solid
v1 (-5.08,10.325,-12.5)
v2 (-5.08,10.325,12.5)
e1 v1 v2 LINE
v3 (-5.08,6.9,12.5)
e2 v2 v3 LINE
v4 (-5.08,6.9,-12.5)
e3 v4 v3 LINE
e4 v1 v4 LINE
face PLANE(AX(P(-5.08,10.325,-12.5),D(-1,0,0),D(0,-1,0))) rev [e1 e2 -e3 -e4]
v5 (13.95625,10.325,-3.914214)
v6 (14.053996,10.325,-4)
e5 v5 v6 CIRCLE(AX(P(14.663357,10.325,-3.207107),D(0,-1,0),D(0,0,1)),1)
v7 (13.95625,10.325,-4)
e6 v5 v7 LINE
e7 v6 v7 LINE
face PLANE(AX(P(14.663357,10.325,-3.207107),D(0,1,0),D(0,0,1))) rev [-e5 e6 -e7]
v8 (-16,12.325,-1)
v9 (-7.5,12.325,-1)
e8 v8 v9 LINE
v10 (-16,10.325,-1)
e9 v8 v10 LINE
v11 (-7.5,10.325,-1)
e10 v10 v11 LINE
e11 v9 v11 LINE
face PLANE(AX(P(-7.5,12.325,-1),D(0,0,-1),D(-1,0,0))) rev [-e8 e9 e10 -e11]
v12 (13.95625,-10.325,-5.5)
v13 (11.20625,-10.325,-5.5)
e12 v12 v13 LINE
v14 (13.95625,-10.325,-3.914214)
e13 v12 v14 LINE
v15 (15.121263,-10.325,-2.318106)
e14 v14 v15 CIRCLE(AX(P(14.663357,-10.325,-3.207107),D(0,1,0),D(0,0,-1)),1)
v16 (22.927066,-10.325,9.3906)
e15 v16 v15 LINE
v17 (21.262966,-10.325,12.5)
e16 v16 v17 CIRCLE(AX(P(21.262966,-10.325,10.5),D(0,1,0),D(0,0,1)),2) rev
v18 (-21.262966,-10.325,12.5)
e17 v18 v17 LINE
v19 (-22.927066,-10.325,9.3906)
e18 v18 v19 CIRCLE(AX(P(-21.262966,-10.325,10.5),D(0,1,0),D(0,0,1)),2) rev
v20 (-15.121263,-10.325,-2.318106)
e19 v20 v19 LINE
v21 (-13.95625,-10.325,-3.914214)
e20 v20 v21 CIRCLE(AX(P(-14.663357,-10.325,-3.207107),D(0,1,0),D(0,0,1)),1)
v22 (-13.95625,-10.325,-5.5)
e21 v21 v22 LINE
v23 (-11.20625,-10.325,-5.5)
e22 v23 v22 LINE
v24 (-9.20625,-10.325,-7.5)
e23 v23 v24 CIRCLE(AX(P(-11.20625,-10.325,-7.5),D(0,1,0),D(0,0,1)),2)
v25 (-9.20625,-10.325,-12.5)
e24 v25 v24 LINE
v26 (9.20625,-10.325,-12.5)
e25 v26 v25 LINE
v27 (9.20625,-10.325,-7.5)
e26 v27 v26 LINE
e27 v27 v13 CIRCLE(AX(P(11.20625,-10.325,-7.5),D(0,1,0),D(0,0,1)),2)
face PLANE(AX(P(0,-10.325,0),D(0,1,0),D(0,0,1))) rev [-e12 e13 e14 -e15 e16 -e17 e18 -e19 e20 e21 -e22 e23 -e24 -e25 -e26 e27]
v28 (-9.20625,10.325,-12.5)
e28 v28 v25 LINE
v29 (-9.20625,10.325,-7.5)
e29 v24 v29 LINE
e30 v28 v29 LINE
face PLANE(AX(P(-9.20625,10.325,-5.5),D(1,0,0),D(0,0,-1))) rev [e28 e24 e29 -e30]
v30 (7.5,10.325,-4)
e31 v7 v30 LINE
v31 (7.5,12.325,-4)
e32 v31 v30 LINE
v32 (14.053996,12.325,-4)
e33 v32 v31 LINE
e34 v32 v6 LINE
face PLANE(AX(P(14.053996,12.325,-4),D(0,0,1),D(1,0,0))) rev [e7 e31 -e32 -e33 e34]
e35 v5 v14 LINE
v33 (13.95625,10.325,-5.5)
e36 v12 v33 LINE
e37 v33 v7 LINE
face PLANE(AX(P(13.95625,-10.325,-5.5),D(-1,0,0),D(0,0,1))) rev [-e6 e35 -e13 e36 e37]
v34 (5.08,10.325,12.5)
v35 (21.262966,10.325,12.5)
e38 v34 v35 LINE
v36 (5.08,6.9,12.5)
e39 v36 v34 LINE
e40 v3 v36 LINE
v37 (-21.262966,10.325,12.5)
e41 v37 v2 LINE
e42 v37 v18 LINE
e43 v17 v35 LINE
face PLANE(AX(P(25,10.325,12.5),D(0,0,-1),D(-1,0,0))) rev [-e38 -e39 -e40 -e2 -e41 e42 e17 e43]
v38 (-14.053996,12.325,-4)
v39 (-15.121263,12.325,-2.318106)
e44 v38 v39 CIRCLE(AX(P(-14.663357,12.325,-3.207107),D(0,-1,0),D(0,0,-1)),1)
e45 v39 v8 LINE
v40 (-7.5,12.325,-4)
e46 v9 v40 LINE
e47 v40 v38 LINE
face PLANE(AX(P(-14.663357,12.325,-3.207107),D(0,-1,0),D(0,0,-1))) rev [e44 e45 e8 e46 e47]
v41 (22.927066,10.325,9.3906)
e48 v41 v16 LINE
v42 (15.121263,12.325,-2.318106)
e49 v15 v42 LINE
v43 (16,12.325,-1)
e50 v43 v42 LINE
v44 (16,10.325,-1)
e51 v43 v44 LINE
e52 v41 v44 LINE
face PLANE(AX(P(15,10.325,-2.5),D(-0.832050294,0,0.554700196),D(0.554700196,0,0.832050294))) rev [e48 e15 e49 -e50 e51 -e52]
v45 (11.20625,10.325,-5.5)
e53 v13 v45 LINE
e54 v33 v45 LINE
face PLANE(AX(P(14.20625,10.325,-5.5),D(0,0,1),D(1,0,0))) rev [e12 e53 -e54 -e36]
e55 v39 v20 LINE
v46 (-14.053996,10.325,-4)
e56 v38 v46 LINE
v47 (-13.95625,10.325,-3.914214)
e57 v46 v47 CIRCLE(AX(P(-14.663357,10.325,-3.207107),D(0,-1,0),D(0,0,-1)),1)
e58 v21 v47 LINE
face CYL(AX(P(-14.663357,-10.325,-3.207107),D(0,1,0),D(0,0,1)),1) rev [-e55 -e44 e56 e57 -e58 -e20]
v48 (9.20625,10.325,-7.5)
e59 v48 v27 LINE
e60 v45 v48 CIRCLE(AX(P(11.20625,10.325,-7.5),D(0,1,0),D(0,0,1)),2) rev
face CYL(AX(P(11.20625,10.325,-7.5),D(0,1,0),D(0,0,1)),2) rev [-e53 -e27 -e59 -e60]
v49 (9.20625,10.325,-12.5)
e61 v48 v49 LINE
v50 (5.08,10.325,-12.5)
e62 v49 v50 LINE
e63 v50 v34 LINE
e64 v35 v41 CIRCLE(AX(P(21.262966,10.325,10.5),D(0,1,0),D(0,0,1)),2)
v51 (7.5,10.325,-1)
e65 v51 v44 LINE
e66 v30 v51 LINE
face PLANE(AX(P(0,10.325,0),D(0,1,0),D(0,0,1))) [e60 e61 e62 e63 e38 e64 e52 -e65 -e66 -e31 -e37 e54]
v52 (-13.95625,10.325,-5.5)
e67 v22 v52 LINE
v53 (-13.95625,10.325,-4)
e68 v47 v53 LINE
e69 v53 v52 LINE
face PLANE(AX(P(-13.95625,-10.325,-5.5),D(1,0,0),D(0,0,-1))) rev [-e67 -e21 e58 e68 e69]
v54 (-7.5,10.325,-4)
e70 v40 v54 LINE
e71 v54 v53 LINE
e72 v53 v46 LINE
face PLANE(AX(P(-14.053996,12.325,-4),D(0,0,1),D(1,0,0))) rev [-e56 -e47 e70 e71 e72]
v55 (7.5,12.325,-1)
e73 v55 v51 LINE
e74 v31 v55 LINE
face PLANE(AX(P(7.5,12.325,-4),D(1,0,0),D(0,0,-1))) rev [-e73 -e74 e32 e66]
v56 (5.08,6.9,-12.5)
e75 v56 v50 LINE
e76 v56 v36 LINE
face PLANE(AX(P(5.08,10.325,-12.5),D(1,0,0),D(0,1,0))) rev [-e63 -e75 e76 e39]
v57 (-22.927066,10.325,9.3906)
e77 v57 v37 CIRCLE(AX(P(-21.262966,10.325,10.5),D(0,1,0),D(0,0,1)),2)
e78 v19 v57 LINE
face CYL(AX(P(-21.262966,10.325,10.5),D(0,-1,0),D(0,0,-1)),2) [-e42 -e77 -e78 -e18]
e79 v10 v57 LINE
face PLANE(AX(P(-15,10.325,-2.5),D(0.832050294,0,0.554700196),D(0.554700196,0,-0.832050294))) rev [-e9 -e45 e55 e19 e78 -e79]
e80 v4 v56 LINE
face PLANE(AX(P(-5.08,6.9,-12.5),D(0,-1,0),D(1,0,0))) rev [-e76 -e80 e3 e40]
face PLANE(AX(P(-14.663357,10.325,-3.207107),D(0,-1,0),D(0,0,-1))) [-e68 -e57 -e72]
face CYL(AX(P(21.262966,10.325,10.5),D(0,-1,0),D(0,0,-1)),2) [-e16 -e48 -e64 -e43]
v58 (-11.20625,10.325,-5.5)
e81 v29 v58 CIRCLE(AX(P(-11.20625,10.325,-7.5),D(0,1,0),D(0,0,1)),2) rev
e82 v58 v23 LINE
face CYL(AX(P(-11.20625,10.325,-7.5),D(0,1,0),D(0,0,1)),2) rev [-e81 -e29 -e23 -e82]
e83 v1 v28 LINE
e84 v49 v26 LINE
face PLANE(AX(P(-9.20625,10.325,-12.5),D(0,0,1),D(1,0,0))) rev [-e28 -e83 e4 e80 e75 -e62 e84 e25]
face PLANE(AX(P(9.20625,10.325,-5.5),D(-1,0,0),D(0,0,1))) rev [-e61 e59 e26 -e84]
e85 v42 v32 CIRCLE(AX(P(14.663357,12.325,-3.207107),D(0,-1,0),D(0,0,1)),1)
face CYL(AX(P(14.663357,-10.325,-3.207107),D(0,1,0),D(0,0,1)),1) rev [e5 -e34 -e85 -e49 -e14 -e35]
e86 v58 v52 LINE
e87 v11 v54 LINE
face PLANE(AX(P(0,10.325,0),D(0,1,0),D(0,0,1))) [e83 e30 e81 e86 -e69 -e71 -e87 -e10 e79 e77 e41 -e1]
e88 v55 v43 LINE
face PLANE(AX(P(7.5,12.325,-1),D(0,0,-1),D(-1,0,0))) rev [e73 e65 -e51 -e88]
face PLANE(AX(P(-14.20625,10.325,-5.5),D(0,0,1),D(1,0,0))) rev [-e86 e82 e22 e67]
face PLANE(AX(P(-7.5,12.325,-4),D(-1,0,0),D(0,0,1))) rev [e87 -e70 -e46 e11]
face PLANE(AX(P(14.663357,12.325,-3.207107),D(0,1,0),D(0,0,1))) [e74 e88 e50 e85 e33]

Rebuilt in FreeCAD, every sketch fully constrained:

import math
import FreeCAD as App
import Part
import Sketcher
from FreeCAD import Vector
Q = App.Units.Quantity


def edges_at(feature, points):
    """Names of the edges that pass closest to the given points."""
    edges = feature.Shape.Edges
    near = lambda p: min(range(len(edges)), key=lambda i: edges[i].distToShape(Part.Vertex(*p))[0])
    return sorted({f"Edge{near(p) + 1}" for p in points})

doc = App.newDocument("Part")
body = doc.addObject("PartDesign::Body", "Body")

# Sketch on XZ plane
sketch1 = body.newObject("Sketcher::SketchObject", "Sketch")
sketch1.AttachmentSupport = (doc.getObject("XZ_Plane"), [""])
sketch1.MapMode = "FlatFace"
sketch1.addGeometry([
    Part.LineSegment(Vector(25, 12.5, 0), Vector(15, -2.5, 0)),  # 0
    Part.LineSegment(Vector(15, -2.5, 0), Vector(14.2, -2.5, 0)),  # 1
    Part.LineSegment(Vector(14.2, -2.5, 0), Vector(14.2, -5.5, 0)),  # 2
    Part.LineSegment(Vector(14.2, -5.5, 0), Vector(9.2, -5.5, 0)),  # 3
    Part.LineSegment(Vector(9.2, -5.5, 0), Vector(9.2, -12.5, 0)),  # 4
    Part.LineSegment(Vector(9.2, -12.5, 0), Vector(-9.2, -12.5, 0)),  # 5
    Part.LineSegment(Vector(-9.2, -12.5, 0), Vector(-9.2, -5.5, 0)),  # 6
    Part.LineSegment(Vector(-9.2, -5.5, 0), Vector(-14.2, -5.5, 0)),  # 7
    Part.LineSegment(Vector(-14.2, -5.5, 0), Vector(-14.2, -2.5, 0)),  # 8
    Part.LineSegment(Vector(-14.2, -2.5, 0), Vector(-15, -2.5, 0)),  # 9
    Part.LineSegment(Vector(-15, -2.5, 0), Vector(-25, 12.5, 0)),  # 10
    Part.LineSegment(Vector(-25, 12.5, 0), Vector(25, 12.5, 0)),  # 11
], False)
sketch1.addConstraint([
    Sketcher.Constraint("Coincident", 0, 2, 1, 1),
    Sketcher.Constraint("Coincident", 1, 2, 2, 1),
    Sketcher.Constraint("Coincident", 2, 2, 3, 1),
    Sketcher.Constraint("Coincident", 3, 2, 4, 1),
    Sketcher.Constraint("Coincident", 4, 2, 5, 1),
    Sketcher.Constraint("Coincident", 5, 2, 6, 1),
    Sketcher.Constraint("Coincident", 6, 2, 7, 1),
    Sketcher.Constraint("Coincident", 7, 2, 8, 1),
    Sketcher.Constraint("Coincident", 8, 2, 9, 1),
    Sketcher.Constraint("Coincident", 9, 2, 10, 1),
    Sketcher.Constraint("Coincident", 10, 2, 11, 1),
    Sketcher.Constraint("Coincident", 11, 2, 0, 1),
    Sketcher.Constraint("Horizontal", 1),
    Sketcher.Constraint("Vertical", 2),
    Sketcher.Constraint("Horizontal", 3),
    Sketcher.Constraint("Vertical", 4),
    Sketcher.Constraint("Horizontal", 5),
    Sketcher.Constraint("Vertical", 6),
    Sketcher.Constraint("Horizontal", 7),
    Sketcher.Constraint("Vertical", 8),
    Sketcher.Constraint("Horizontal", 9),
    Sketcher.Constraint("Horizontal", 11),
    Sketcher.Constraint("Symmetric", 3, 2, 6, 2, -2),
    Sketcher.Constraint("Symmetric", 1, 2, 8, 2, -2),
    Sketcher.Constraint("Equal", 1, 9),
    Sketcher.Constraint("Equal", 0, 10),
    Sketcher.Constraint("DistanceX", 3, 2, 3, 1, Q("5 mm")),
    Sketcher.Constraint("DistanceX", 11, 1, 11, 2, Q("50 mm")),
    Sketcher.Constraint("DistanceY", 2, 2, 2, 1, Q("3 mm")),
    Sketcher.Constraint("DistanceY", 4, 2, 4, 1, Q("7 mm")),
    Sketcher.Constraint("DistanceX", -1, 1, 0, 2, Q("15 mm")),
    Sketcher.Constraint("DistanceY", 9, 2, 10, 2, Q("15 mm")),
    Sketcher.Constraint("DistanceY", 0, 2, -1, 1, Q("2.5 mm")),
    Sketcher.Constraint("DistanceX", 5, 2, 5, 1, Q("18.4125 mm")),
])
pad1 = body.newObject("PartDesign::Pad", "Pad")
pad1.Profile = sketch1
pad1.Length = 20.65
pad1.Midplane = True

# Sketch on XZ plane
sketch2 = body.newObject("Sketcher::SketchObject", "Sketch001")
sketch2.AttachmentSupport = (doc.getObject("XZ_Plane"), [""])
sketch2.MapMode = "FlatFace"
sketch2.AttachmentOffset = App.Placement(Vector(0, 0, -10.325), App.Rotation())
sketch2.addGeometry([
    Part.LineSegment(Vector(13.96, -5.5, 0), Vector(13.96, -2.5, 0)),  # 0
    Part.LineSegment(Vector(13.96, -2.5, 0), Vector(14.21, -2.5, 0)),  # 1
    Part.LineSegment(Vector(14.21, -2.5, 0), Vector(14.21, -5.5, 0)),  # 2
    Part.LineSegment(Vector(14.21, -5.5, 0), Vector(13.96, -5.5, 0)),  # 3
    Part.LineSegment(Vector(-14.21, -5.5, 0), Vector(-14.21, -2.5, 0)),  # 4
    Part.LineSegment(Vector(-14.21, -2.5, 0), Vector(-13.96, -2.5, 0)),  # 5
    Part.LineSegment(Vector(-13.96, -2.5, 0), Vector(-13.96, -5.5, 0)),  # 6
    Part.LineSegment(Vector(-13.96, -5.5, 0), Vector(-14.21, -5.5, 0)),  # 7
], False)
sketch2.addConstraint([
    Sketcher.Constraint("Coincident", 0, 2, 1, 1),
    Sketcher.Constraint("Coincident", 1, 2, 2, 1),
    Sketcher.Constraint("Coincident", 2, 2, 3, 1),
    Sketcher.Constraint("Coincident", 3, 2, 0, 1),
    Sketcher.Constraint("Coincident", 4, 2, 5, 1),
    Sketcher.Constraint("Coincident", 5, 2, 6, 1),
    Sketcher.Constraint("Coincident", 6, 2, 7, 1),
    Sketcher.Constraint("Coincident", 7, 2, 4, 1),
    Sketcher.Constraint("Vertical", 0),
    Sketcher.Constraint("Horizontal", 1),
    Sketcher.Constraint("Vertical", 2),
    Sketcher.Constraint("Horizontal", 3),
    Sketcher.Constraint("Vertical", 4),
    Sketcher.Constraint("Horizontal", 5),
    Sketcher.Constraint("Vertical", 6),
    Sketcher.Constraint("Horizontal", 7),
    Sketcher.Constraint("Symmetric", 1, 2, 4, 2, -2),
    Sketcher.Constraint("Symmetric", 3, 2, 6, 2, -2),
    Sketcher.Constraint("DistanceY", 0, 1, 0, 2, Q("3 mm")),
    Sketcher.Constraint("DistanceX", 1, 1, 1, 2, Q("0.25 mm")),
    Sketcher.Constraint("DistanceY", 0, 2, -1, 1, Q("2.5 mm")),
    Sketcher.Constraint("DistanceX", 4, 2, 0, 2, Q("28.1625 mm")),
])
pocket1 = body.newObject("PartDesign::Pocket", "Pocket")
pocket1.Profile = sketch2
pocket1.Type = "ThroughAll"
pocket1.Midplane = True

# Sketch on XZ plane
sketch3 = body.newObject("Sketcher::SketchObject", "Sketch002")
sketch3.AttachmentSupport = (doc.getObject("XZ_Plane"), [""])
sketch3.MapMode = "FlatFace"
sketch3.AttachmentOffset = App.Placement(Vector(0, 0, -10.325), App.Rotation())
sketch3.addGeometry([
    Part.Circle(Vector(-14.7, -3.2, 0), Vector(0, 0, 1), 1),
    Part.Circle(Vector(14.7, -3.2, 0), Vector(0, 0, 1), 1),
], False)
sketch3.addConstraint([
    Sketcher.Constraint("Equal", 0, 1),
    Sketcher.Constraint("Symmetric", 0, 3, 1, 3, -2),
    Sketcher.Constraint("Diameter", 0, Q("2 mm")),
    Sketcher.Constraint("DistanceX", 0, 3, -1, 1, Q("14.663357 mm")),
    Sketcher.Constraint("DistanceY", 0, 3, -1, 1, Q("3.207107 mm")),
])
pocket2 = body.newObject("PartDesign::Pocket", "Pocket001")
pocket2.Profile = sketch3
pocket2.Type = "ThroughAll"
pocket2.Midplane = True
doc.recompute()

fillet = body.newObject("PartDesign::Fillet", "Fillet")
fillet.Base = (pocket2, edges_at(pocket2, [
    (-25, 0, 12.5),
    (-9.206, 0, -5.5),
    (9.206, 0, -5.5),
    (25, 0, 12.5),
]))
fillet.Radius = 2

# Sketch on XZ plane
sketch4 = body.newObject("Sketcher::SketchObject", "Sketch003")
sketch4.AttachmentSupport = (doc.getObject("XZ_Plane"), [""])
sketch4.MapMode = "FlatFace"
sketch4.AttachmentOffset = App.Placement(Vector(0, 0, -12.325), App.Rotation())
sketch4.addGeometry([
    Part.LineSegment(Vector(-7.5, -4, 0), Vector(-14.1, -4, 0)),  # 0
    Part.ArcOfCircle(Part.Circle(Vector(-14.7, -3.2, 0), Vector(0, 0, 1), 1), math.radians(-52), math.radians(117)),  # 1
    Part.LineSegment(Vector(-15.1, -2.3, 0), Vector(-16, -1, 0)),  # 2
    Part.LineSegment(Vector(-16, -1, 0), Vector(-7.5, -1, 0)),  # 3
    Part.LineSegment(Vector(-7.5, -1, 0), Vector(-7.5, -4, 0)),  # 4
    Part.LineSegment(Vector(16, -1, 0), Vector(15.1, -2.3, 0)),  # 5
    Part.ArcOfCircle(Part.Circle(Vector(14.7, -3.2, 0), Vector(0, 0, 1), 1), math.radians(63), math.radians(232)),  # 6
    Part.LineSegment(Vector(14.1, -4, 0), Vector(7.5, -4, 0)),  # 7
    Part.LineSegment(Vector(7.5, -4, 0), Vector(7.5, -1, 0)),  # 8
    Part.LineSegment(Vector(7.5, -1, 0), Vector(16, -1, 0)),  # 9
], False)
sketch4.addConstraint([
    Sketcher.Constraint("Coincident", 0, 2, 1, 1),
    Sketcher.Constraint("Coincident", 1, 2, 2, 1),
    Sketcher.Constraint("Coincident", 2, 2, 3, 1),
    Sketcher.Constraint("Coincident", 3, 2, 4, 1),
    Sketcher.Constraint("Coincident", 4, 2, 0, 1),
    Sketcher.Constraint("Coincident", 5, 2, 6, 1),
    Sketcher.Constraint("Coincident", 6, 2, 7, 1),
    Sketcher.Constraint("Coincident", 7, 2, 8, 1),
    Sketcher.Constraint("Coincident", 8, 2, 9, 1),
    Sketcher.Constraint("Coincident", 9, 2, 5, 1),
    Sketcher.Constraint("Horizontal", 0),
    Sketcher.Constraint("Horizontal", 3),
    Sketcher.Constraint("Vertical", 4),
    Sketcher.Constraint("Horizontal", 7),
    Sketcher.Constraint("Vertical", 8),
    Sketcher.Constraint("Horizontal", 9),
    Sketcher.Constraint("Equal", 1, 6),
    Sketcher.Constraint("Symmetric", 1, 3, 6, 3, -2),
    Sketcher.Constraint("Symmetric", 4, 2, 7, 2, -2),
    Sketcher.Constraint("Symmetric", 2, 2, 9, 2, -2),
    Sketcher.Constraint("Horizontal", 1, 2, 5, 2),
    Sketcher.Constraint("Radius", 1, Q("1 mm")),
    Sketcher.Constraint("DistanceY", 4, 2, 4, 1, Q("3 mm")),
    Sketcher.Constraint("DistanceX", 3, 1, 3, 2, Q("8.5 mm")),
    Sketcher.Constraint("DistanceY", 0, 2, -1, 1, Q("4 mm")),
    Sketcher.Constraint("DistanceX", 2, 2, -1, 1, Q("16 mm")),
    Sketcher.Constraint("DistanceY", 1, 3, 1, 2, Q("0.889001 mm")),
    Sketcher.Constraint("DistanceX", 0, 2, 0, 1, Q("6.553996 mm")),
    Sketcher.Constraint("DistanceX", 1, 3, 0, 2, Q("0.609361 mm")),
])
pad2 = body.newObject("PartDesign::Pad", "Pad001")
pad2.Profile = sketch4
pad2.Length = 2

# Sketch on XY plane
sketch5 = body.newObject("Sketcher::SketchObject", "Sketch004")
sketch5.AttachmentSupport = (doc.getObject("XY_Plane"), [""])
sketch5.MapMode = "FlatFace"
sketch5.AttachmentOffset = App.Placement(Vector(0, 0, 12.5), App.Rotation())
sketch5.addGeometry([
    Part.LineSegment(Vector(-5.1, 10.3, 0), Vector(-5.1, 6.9, 0)),
    Part.LineSegment(Vector(-5.1, 6.9, 0), Vector(5.1, 6.9, 0)),
    Part.LineSegment(Vector(5.1, 6.9, 0), Vector(5.1, 10.3, 0)),
    Part.LineSegment(Vector(5.1, 10.3, 0), Vector(-5.1, 10.3, 0)),
], False)
sketch5.addConstraint([
    Sketcher.Constraint("Coincident", 0, 2, 1, 1),
    Sketcher.Constraint("Coincident", 1, 2, 2, 1),
    Sketcher.Constraint("Coincident", 2, 2, 3, 1),
    Sketcher.Constraint("Coincident", 3, 2, 0, 1),
    Sketcher.Constraint("Vertical", 0),
    Sketcher.Constraint("Horizontal", 1),
    Sketcher.Constraint("Vertical", 2),
    Sketcher.Constraint("Horizontal", 3),
    Sketcher.Constraint("DistanceX", 1, 1, 1, 2, Q("10.16 mm")),
    Sketcher.Constraint("DistanceY", -1, 1, 0, 2, Q("6.9 mm")),
    Sketcher.Constraint("DistanceY", 0, 2, 0, 1, Q("3.425 mm")),
    Sketcher.Constraint("DistanceX", 0, 2, -1, 1, Q("5.08 mm")),
])
pocket3 = body.newObject("PartDesign::Pocket", "Pocket002")
pocket3.Profile = sketch5
pocket3.Type = "ThroughAll"

doc.recompute()
